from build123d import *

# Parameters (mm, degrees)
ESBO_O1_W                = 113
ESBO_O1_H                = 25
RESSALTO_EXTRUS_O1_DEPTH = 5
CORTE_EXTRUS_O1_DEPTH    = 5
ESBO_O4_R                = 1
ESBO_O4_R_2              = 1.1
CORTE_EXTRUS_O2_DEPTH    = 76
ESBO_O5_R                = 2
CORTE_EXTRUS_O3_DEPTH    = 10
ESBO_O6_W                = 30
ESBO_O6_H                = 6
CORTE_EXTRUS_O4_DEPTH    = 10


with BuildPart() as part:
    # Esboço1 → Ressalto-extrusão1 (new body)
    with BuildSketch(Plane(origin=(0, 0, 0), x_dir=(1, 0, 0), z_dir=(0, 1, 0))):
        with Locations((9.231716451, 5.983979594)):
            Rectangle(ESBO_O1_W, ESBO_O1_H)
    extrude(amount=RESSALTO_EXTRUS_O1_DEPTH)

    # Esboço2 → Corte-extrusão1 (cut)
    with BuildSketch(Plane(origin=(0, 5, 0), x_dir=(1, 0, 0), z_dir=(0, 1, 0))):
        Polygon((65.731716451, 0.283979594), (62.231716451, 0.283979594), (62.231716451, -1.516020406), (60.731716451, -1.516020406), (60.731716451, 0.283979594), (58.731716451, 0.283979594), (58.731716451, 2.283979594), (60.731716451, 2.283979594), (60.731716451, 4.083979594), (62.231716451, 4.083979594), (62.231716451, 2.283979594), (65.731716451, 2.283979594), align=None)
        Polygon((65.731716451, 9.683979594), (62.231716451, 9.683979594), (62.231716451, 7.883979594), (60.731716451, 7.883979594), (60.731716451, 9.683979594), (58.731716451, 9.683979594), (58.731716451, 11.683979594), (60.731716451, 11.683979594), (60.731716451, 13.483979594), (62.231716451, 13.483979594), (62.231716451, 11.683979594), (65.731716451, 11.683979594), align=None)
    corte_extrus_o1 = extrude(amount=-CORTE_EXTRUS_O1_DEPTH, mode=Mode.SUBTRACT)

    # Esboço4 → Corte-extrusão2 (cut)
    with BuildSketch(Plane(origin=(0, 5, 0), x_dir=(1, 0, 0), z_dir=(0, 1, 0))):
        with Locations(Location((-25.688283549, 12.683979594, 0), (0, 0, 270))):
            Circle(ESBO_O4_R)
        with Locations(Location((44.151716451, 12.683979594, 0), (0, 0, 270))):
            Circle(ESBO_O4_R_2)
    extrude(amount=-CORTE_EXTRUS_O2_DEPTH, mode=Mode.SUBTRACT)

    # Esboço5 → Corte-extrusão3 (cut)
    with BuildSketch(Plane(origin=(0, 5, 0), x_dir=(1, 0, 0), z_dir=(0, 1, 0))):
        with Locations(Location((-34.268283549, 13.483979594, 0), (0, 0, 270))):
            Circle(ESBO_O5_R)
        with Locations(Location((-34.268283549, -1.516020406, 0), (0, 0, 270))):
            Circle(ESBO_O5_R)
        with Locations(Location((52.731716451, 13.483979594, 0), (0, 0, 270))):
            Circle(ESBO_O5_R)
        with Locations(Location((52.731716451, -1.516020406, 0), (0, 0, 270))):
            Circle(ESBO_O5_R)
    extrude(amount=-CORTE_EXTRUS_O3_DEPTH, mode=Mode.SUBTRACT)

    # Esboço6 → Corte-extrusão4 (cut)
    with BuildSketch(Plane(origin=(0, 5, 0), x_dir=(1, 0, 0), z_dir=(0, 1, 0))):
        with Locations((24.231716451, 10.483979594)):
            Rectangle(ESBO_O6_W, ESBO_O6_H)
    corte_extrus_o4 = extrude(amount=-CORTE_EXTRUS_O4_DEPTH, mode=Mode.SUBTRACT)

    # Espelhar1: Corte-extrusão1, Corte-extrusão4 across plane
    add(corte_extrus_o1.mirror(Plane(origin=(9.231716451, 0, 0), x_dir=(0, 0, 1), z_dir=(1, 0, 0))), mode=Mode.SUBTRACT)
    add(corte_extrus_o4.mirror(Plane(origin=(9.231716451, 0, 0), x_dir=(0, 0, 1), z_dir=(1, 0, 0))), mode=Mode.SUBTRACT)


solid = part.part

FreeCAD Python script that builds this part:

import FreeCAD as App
import Part
import Sketcher

doc = App.newDocument("Part")
body = doc.addObject("PartDesign::Body", "Body")

sketch1 = body.newObject("Sketcher::SketchObject", "Sketch")
sketch1.AttachmentSupport = (doc.getObject("XZ_Plane"), [""])
sketch1.MapMode = "FlatFace"
sketch1.addGeometry(Part.LineSegment(App.Vector(-47.268284, -18.48398, 0), App.Vector(-47.268284, 6.51602, 0)), False)
sketch1.addGeometry(Part.LineSegment(App.Vector(-47.268284, 6.51602, 0), App.Vector(65.731716, 6.51602, 0)), False)
sketch1.addGeometry(Part.LineSegment(App.Vector(65.731716, 6.51602, 0), App.Vector(65.731716, -18.48398, 0)), False)
sketch1.addGeometry(Part.LineSegment(App.Vector(65.731716, -18.48398, 0), App.Vector(-47.268284, -18.48398, 0)), False)
sketch1.addConstraint(Sketcher.Constraint("Coincident", 0, 2, 1, 1))
sketch1.addConstraint(Sketcher.Constraint("Coincident", 1, 2, 2, 1))
sketch1.addConstraint(Sketcher.Constraint("Coincident", 2, 2, 3, 1))
sketch1.addConstraint(Sketcher.Constraint("Coincident", 3, 2, 0, 1))
sketch1.addConstraint(Sketcher.Constraint("Vertical", 0))
sketch1.addConstraint(Sketcher.Constraint("Horizontal", 1))
sketch1.addConstraint(Sketcher.Constraint("Vertical", 2))
sketch1.addConstraint(Sketcher.Constraint("Horizontal", 3))
sketch1.addConstraint(Sketcher.Constraint("DistanceX", 1, 1, 1, 2, 113.0))
sketch1.addConstraint(Sketcher.Constraint("DistanceY", 0, 1, 0, 2, 25.0))
sketch1.addConstraint(Sketcher.Constraint("DistanceY", -1, 1, 0, 2, 6.51602))
sketch1.addConstraint(Sketcher.Constraint("DistanceX", 0, 2, -1, 1, 47.268284))
pad1 = body.newObject("PartDesign::Pad", "Pad")
pad1.Profile = sketch1
pad1.Length = 5
pad1.Reversed = True

sketch2 = body.newObject("Sketcher::SketchObject", "Sketch001")
sketch2.AttachmentSupport = (doc.getObject("XZ_Plane"), [""])
sketch2.MapMode = "FlatFace"
sketch2.AttachmentOffset = App.Placement(App.Vector(0, 0, -5), App.Rotation())
sketch2.addGeometry(Part.LineSegment(App.Vector(62.231716, -0.28398, 0), App.Vector(65.731716, -0.28398, 0)), False)
sketch2.addGeometry(Part.LineSegment(App.Vector(65.731716, -0.28398, 0), App.Vector(65.731716, -2.28398, 0)), False)
sketch2.addGeometry(Part.LineSegment(App.Vector(65.731716, -2.28398, 0), App.Vector(62.231716, -2.28398, 0)), False)
sketch2.addGeometry(Part.LineSegment(App.Vector(62.231716, -2.28398, 0), App.Vector(62.231716, -4.08398, 0)), False)
sketch2.addGeometry(Part.LineSegment(App.Vector(62.231716, -4.08398, 0), App.Vector(60.731716, -4.08398, 0)), False)
sketch2.addGeometry(Part.LineSegment(App.Vector(60.731716, -4.08398, 0), App.Vector(60.731716, -2.28398, 0)), False)
sketch2.addGeometry(Part.LineSegment(App.Vector(60.731716, -2.28398, 0), App.Vector(58.731716, -2.28398, 0)), False)
sketch2.addGeometry(Part.LineSegment(App.Vector(58.731716, -2.28398, 0), App.Vector(58.731716, -0.28398, 0)), False)
sketch2.addGeometry(Part.LineSegment(App.Vector(58.731716, -0.28398, 0), App.Vector(60.731716, -0.28398, 0)), False)
sketch2.addGeometry(Part.LineSegment(App.Vector(60.731716, -0.28398, 0), App.Vector(60.731716, 1.51602, 0)), False)
sketch2.addGeometry(Part.LineSegment(App.Vector(60.731716, 1.51602, 0), App.Vector(62.231716, 1.51602, 0)), False)
sketch2.addGeometry(Part.LineSegment(App.Vector(62.231716, 1.51602, 0), App.Vector(62.231716, -0.28398, 0)), False)
sketch2.addGeometry(Part.LineSegment(App.Vector(62.231716, -9.68398, 0), App.Vector(65.731716, -9.68398, 0)), False)
sketch2.addGeometry(Part.LineSegment(App.Vector(65.731716, -9.68398, 0), App.Vector(65.731716, -11.68398, 0)), False)
sketch2.addGeometry(Part.LineSegment(App.Vector(65.731716, -11.68398, 0), App.Vector(62.231716, -11.68398, 0)), False)
sketch2.addGeometry(Part.LineSegment(App.Vector(62.231716, -11.68398, 0), App.Vector(62.231716, -13.48398, 0)), False)
sketch2.addGeometry(Part.LineSegment(App.Vector(62.231716, -13.48398, 0), App.Vector(60.731716, -13.48398, 0)), False)
sketch2.addGeometry(Part.LineSegment(App.Vector(60.731716, -13.48398, 0), App.Vector(60.731716, -11.68398, 0)), False)
sketch2.addGeometry(Part.LineSegment(App.Vector(60.731716, -11.68398, 0), App.Vector(58.731716, -11.68398, 0)), False)
sketch2.addGeometry(Part.LineSegment(App.Vector(58.731716, -11.68398, 0), App.Vector(58.731716, -9.68398, 0)), False)
sketch2.addGeometry(Part.LineSegment(App.Vector(58.731716, -9.68398, 0), App.Vector(60.731716, -9.68398, 0)), False)
sketch2.addGeometry(Part.LineSegment(App.Vector(60.731716, -9.68398, 0), App.Vector(60.731716, -7.88398, 0)), False)
sketch2.addGeometry(Part.LineSegment(App.Vector(60.731716, -7.88398, 0), App.Vector(62.231716, -7.88398, 0)), False)
sketch2.addGeometry(Part.LineSegment(App.Vector(62.231716, -7.88398, 0), App.Vector(62.231716, -9.68398, 0)), False)
sketch2.addConstraint(Sketcher.Constraint("Coincident", 0, 2, 1, 1))
sketch2.addConstraint(Sketcher.Constraint("Coincident", 1, 2, 2, 1))
sketch2.addConstraint(Sketcher.Constraint("Coincident", 2, 2, 3, 1))
sketch2.addConstraint(Sketcher.Constraint("Coincident", 3, 2, 4, 1))
sketch2.addConstraint(Sketcher.Constraint("Coincident", 4, 2, 5, 1))
sketch2.addConstraint(Sketcher.Constraint("Coincident", 5, 2, 6, 1))
sketch2.addConstraint(Sketcher.Constraint("Coincident", 6, 2, 7, 1))
sketch2.addConstraint(Sketcher.Constraint("Coincident", 7, 2, 8, 1))
sketch2.addConstraint(Sketcher.Constraint("Coincident", 8, 2, 9, 1))
sketch2.addConstraint(Sketcher.Constraint("Coincident", 9, 2, 10, 1))
sketch2.addConstraint(Sketcher.Constraint("Coincident", 10, 2, 11, 1))
sketch2.addConstraint(Sketcher.Constraint("Coincident", 11, 2, 0, 1))
sketch2.addConstraint(Sketcher.Constraint("Coincident", 12, 2, 13, 1))
sketch2.addConstraint(Sketcher.Constraint("Coincident", 13, 2, 14, 1))
sketch2.addConstraint(Sketcher.Constraint("Coincident", 14, 2, 15, 1))
sketch2.addConstraint(Sketcher.Constraint("Coincident", 15, 2, 16, 1))
sketch2.addConstraint(Sketcher.Constraint("Coincident", 16, 2, 17, 1))
sketch2.addConstraint(Sketcher.Constraint("Coincident", 17, 2, 18, 1))
sketch2.addConstraint(Sketcher.Constraint("Coincident", 18, 2, 19, 1))
sketch2.addConstraint(Sketcher.Constraint("Coincident", 19, 2, 20, 1))
sketch2.addConstraint(Sketcher.Constraint("Coincident", 20, 2, 21, 1))
sketch2.addConstraint(Sketcher.Constraint("Coincident", 21, 2, 22, 1))
sketch2.addConstraint(Sketcher.Constraint("Coincident", 22, 2, 23, 1))
sketch2.addConstraint(Sketcher.Constraint("Coincident", 23, 2, 12, 1))
sketch2.addConstraint(Sketcher.Constraint("Horizontal", 0))
sketch2.addConstraint(Sketcher.Constraint("Vertical", 1))
sketch2.addConstraint(Sketcher.Constraint("Horizontal", 2))
sketch2.addConstraint(Sketcher.Constraint("Vertical", 3))
sketch2.addConstraint(Sketcher.Constraint("Horizontal", 4))
sketch2.addConstraint(Sketcher.Constraint("Vertical", 5))
sketch2.addConstraint(Sketcher.Constraint("Horizontal", 6))
sketch2.addConstraint(Sketcher.Constraint("Vertical", 7))
sketch2.addConstraint(Sketcher.Constraint("Horizontal", 8))
sketch2.addConstraint(Sketcher.Constraint("Vertical", 9))
sketch2.addConstraint(Sketcher.Constraint("Horizontal", 10))
sketch2.addConstraint(Sketcher.Constraint("Vertical", 11))
sketch2.addConstraint(Sketcher.Constraint("Horizontal", 12))
sketch2.addConstraint(Sketcher.Constraint("Vertical", 13))
sketch2.addConstraint(Sketcher.Constraint("Horizontal", 14))
sketch2.addConstraint(Sketcher.Constraint("Vertical", 15))
sketch2.addConstraint(Sketcher.Constraint("Horizontal", 16))
sketch2.addConstraint(Sketcher.Constraint("Vertical", 17))
sketch2.addConstraint(Sketcher.Constraint("Horizontal", 18))
sketch2.addConstraint(Sketcher.Constraint("Vertical", 19))
sketch2.addConstraint(Sketcher.Constraint("Horizontal", 20))
sketch2.addConstraint(Sketcher.Constraint("Vertical", 21))
sketch2.addConstraint(Sketcher.Constraint("Horizontal", 22))
sketch2.addConstraint(Sketcher.Constraint("Vertical", 23))
sketch2.addConstraint(Sketcher.Constraint("Horizontal", 2, 2, 5, 2))
sketch2.addConstraint(Sketcher.Constraint("Horizontal", 0, 2, 7, 2))
sketch2.addConstraint(Sketcher.Constraint("Horizontal", 14, 2, 17, 2))
sketch2.addConstraint(Sketcher.Constraint("Horizontal", 12, 2, 19, 2))
sketch2.addConstraint(Sketcher.Constraint("Vertical", 5, 2, 8, 2))
sketch2.addConstraint(Sketcher.Constraint("Vertical", 3, 2, 10, 2))
sketch2.addConstraint(Sketcher.Constraint("Vertical", 1, 2, 12, 2))
sketch2.addConstraint(Sketcher.Constraint("Vertical", 11, 2, 14, 2))
sketch2.addConstraint(Sketcher.Constraint("Vertical", 9, 2, 16, 2))
sketch2.addConstraint(Sketcher.Constraint("Vertical", 7, 2, 18, 2))
sketch2.addConstraint(Sketcher.Constraint("Vertical", 17, 2, 20, 2))
sketch2.addConstraint(Sketcher.Constraint("Vertical", 15, 2, 22, 2))
sketch2.addConstraint(Sketcher.Constraint("Equal", 20, 1))
sketch2.addConstraint(Sketcher.Constraint("Equal", 5, 9))
sketch2.addConstraint(Sketcher.Constraint("Equal", 7, 13))
sketch2.addConstraint(Sketcher.Constraint("Equal", 11, 15))
sketch2.addConstraint(Sketcher.Constraint("Equal", 17, 21))
sketch2.addConstraint(Sketcher.Constraint("DistanceX", 6, 2, 6, 1, 2.0))
sketch2.addConstraint(Sketcher.Constraint("DistanceX", 0, 1, 0, 2, 3.5))
sketch2.addConstraint(Sketcher.Constraint("DistanceX", 4, 2, 4, 1, 1.5))
sketch2.addConstraint(Sketcher.Constraint("DistanceY", 3, 2, 3, 1, 1.8))
sketch2.addConstraint(Sketcher.Constraint("DistanceY", 12, 2, 3, 2, 5.6))
sketch2.addConstraint(Sketcher.Constraint("DistanceY", 0, 2, -1, 1, 0.28398))
sketch2.addConstraint(Sketcher.Constraint("DistanceX", -1, 1, 0, 2, 65.731716))
pocket1 = body.newObject("PartDesign::Pocket", "Pocket")
pocket1.Profile = sketch2
pocket1.Length = 5
pocket1.Reversed = True

sketch3 = body.newObject("Sketcher::SketchObject", "Sketch002")
sketch3.AttachmentSupport = (doc.getObject("XZ_Plane"), [""])
sketch3.MapMode = "FlatFace"
sketch3.AttachmentOffset = App.Placement(App.Vector(0, 0, -5), App.Rotation())
sketch3.addGeometry(Part.Circle(App.Vector(-25.688284, -12.68398, 0), App.Vector(0, 0, 1), 1), False)
sketch3.addGeometry(Part.Circle(App.Vector(44.151716, -12.68398, 0), App.Vector(0, 0, 1), 1.1), False)
sketch3.addConstraint(Sketcher.Constraint("Horizontal", 0, 3, 1, 3))
sketch3.addConstraint(Sketcher.Constraint("Diameter", 0, 2.0))
sketch3.addConstraint(Sketcher.Constraint("Diameter", 1, 2.2))
sketch3.addConstraint(Sketcher.Constraint("DistanceX", 0, 3, 1, 3, 69.84))
sketch3.addConstraint(Sketcher.Constraint("DistanceY", 0, 3, -1, 1, 12.68398))
sketch3.addConstraint(Sketcher.Constraint("DistanceX", 0, 3, -1, 1, 25.688284))
pocket2 = body.newObject("PartDesign::Pocket", "Pocket001")
pocket2.Profile = sketch3
pocket2.Length = 76
pocket2.Reversed = True

sketch4 = body.newObject("Sketcher::SketchObject", "Sketch003")
sketch4.AttachmentSupport = (doc.getObject("XZ_Plane"), [""])
sketch4.MapMode = "FlatFace"
sketch4.AttachmentOffset = App.Placement(App.Vector(0, 0, -5), App.Rotation())
sketch4.addGeometry(Part.Circle(App.Vector(-34.268284, -13.48398, 0), App.Vector(0, 0, 1), 2), False)
sketch4.addGeometry(Part.Circle(App.Vector(-34.268284, 1.51602, 0), App.Vector(0, 0, 1), 2), False)
sketch4.addGeometry(Part.Circle(App.Vector(52.731716, -13.48398, 0), App.Vector(0, 0, 1), 2), False)
sketch4.addGeometry(Part.Circle(App.Vector(52.731716, 1.51602, 0), App.Vector(0, 0, 1), 2), False)
sketch4.addConstraint(Sketcher.Constraint("Equal", 0, 1))
sketch4.addConstraint(Sketcher.Constraint("Equal", 1, 2))
sketch4.addConstraint(Sketcher.Constraint("Equal", 2, 3))
sketch4.addConstraint(Sketcher.Constraint("Horizontal", 0, 3, 2, 3))
sketch4.addConstraint(Sketcher.Constraint("Horizontal", 1, 3, 3, 3))
sketch4.addConstraint(Sketcher.Constraint("Vertical", 0, 3, 1, 3))
sketch4.addConstraint(Sketcher.Constraint("Vertical", 2, 3, 3, 3))
sketch4.addConstraint(Sketcher.Constraint("Diameter", 0, 4.0))
sketch4.addConstraint(Sketcher.Constraint("DistanceY", 0, 3, 1, 3, 15.0))
sketch4.addConstraint(Sketcher.Constraint("DistanceX", 0, 3, 2, 3, 87.0))
sketch4.addConstraint(Sketcher.Constraint("DistanceY", 0, 3, -1, 1, 13.48398))
sketch4.addConstraint(Sketcher.Constraint("DistanceX", 0, 3, -1, 1, 34.268284))
pocket3 = body.newObject("PartDesign::Pocket", "Pocket002")
pocket3.Profile = sketch4
pocket3.Length = 10
pocket3.Reversed = True

sketch5 = body.newObject("Sketcher::SketchObject", "Sketch004")
sketch5.AttachmentSupport = (doc.getObject("XZ_Plane"), [""])
sketch5.MapMode = "FlatFace"
sketch5.AttachmentOffset = App.Placement(App.Vector(0, 0, -5), App.Rotation())
sketch5.addGeometry(Part.LineSegment(App.Vector(9.231716, -13.48398, 0), App.Vector(9.231716, -7.48398, 0)), False)
sketch5.addGeometry(Part.LineSegment(App.Vector(9.231716, -7.48398, 0), App.Vector(39.231716, -7.48398, 0)), False)
sketch5.addGeometry(Part.LineSegment(App.Vector(39.231716, -7.48398, 0), App.Vector(39.231716, -13.48398, 0)), False)
sketch5.addGeometry(Part.LineSegment(App.Vector(39.231716, -13.48398, 0), App.Vector(9.231716, -13.48398, 0)), False)
sketch5.addConstraint(Sketcher.Constraint("Coincident", 0, 2, 1, 1))
sketch5.addConstraint(Sketcher.Constraint("Coincident", 1, 2, 2, 1))
sketch5.addConstraint(Sketcher.Constraint("Coincident", 2, 2, 3, 1))
sketch5.addConstraint(Sketcher.Constraint("Coincident", 3, 2, 0, 1))
sketch5.addConstraint(Sketcher.Constraint("Vertical", 0))
sketch5.addConstraint(Sketcher.Constraint("Horizontal", 1))
sketch5.addConstraint(Sketcher.Constraint("Vertical", 2))
sketch5.addConstraint(Sketcher.Constraint("Horizontal", 3))
sketch5.addConstraint(Sketcher.Constraint("DistanceX", 1, 1, 1, 2, 30.0))
sketch5.addConstraint(Sketcher.Constraint("DistanceY", 0, 1, 0, 2, 6.0))
sketch5.addConstraint(Sketcher.Constraint("DistanceY", 0, 2, -1, 1, 7.48398))
sketch5.addConstraint(Sketcher.Constraint("DistanceX", -1, 1, 0, 2, 9.231716))
pocket4 = body.newObject("PartDesign::Pocket", "Pocket003")
pocket4.Profile = sketch5
pocket4.Length = 10
pocket4.Reversed = True
doc.recompute()

datumplane = body.newObject("PartDesign::Plane", "DatumPlane")
datumplane.AttachmentSupport = (doc.getObject("YZ_Plane"), [""])
datumplane.MapMode = "FlatFace"
datumplane.AttachmentOffset = App.Placement(App.Vector(0, 0, 9.231716), App.Rotation())
mirrored = body.newObject("PartDesign::Mirrored", "Mirrored")
mirrored.Originals = [pocket1, pocket4]
mirrored.MirrorPlane = (datumplane, [""])
body.Tip = mirrored

doc.recompute()
